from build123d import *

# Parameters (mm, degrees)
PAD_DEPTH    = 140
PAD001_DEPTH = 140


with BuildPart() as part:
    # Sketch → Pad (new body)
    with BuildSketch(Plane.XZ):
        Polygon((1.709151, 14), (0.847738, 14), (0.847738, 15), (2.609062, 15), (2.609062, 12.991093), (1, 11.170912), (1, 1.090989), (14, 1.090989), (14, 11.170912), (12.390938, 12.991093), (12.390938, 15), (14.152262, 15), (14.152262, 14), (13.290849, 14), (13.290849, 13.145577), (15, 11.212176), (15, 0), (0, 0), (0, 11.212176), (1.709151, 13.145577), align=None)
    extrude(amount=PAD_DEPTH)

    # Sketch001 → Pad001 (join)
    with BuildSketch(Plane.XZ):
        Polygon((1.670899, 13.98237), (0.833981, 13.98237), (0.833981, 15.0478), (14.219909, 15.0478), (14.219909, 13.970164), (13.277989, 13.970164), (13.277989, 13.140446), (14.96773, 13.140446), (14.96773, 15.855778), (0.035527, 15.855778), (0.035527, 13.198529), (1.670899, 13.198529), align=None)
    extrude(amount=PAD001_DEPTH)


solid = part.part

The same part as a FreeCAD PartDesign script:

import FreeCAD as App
import Part
import Sketcher

V = App.Vector
Q = App.Units.Quantity


def add_polygon(sketch, points):
    """Adds a closed chain of lines whose ends are joined by coincident constraints."""
    first, n = sketch.GeometryCount, len(points)
    for a, b in zip(points, points[1:] + points[:1]):
        sketch.addGeometry(Part.LineSegment(App.Vector(*a, 0), App.Vector(*b, 0)), False)
    for i in range(n):
        sketch.addConstraint(Sketcher.Constraint("Coincident", first + i, 2, first + (i + 1) % n, 1))

doc = App.newDocument("Part")
body = doc.addObject("PartDesign::Body", "Body")

sketch1 = body.newObject("Sketcher::SketchObject", "Sketch")
sketch1.AttachmentSupport = (doc.getObject("XZ_Plane"), [""])
sketch1.MapMode = "FlatFace"
add_polygon(sketch1, [(0.8, 14), (1.7, 14), (1.7, 13.1), (0, 11.2), (0, 0), (15, 0), (15, 11.2), (13.3, 13.1), (13.3, 14), (14.2, 14), (14.2, 15), (12.4, 15), (12.4, 13), (14, 11.2), (14, 1.1), (1, 1.1), (1, 11.2), (2.6, 13), (2.6, 15), (0.8, 15)])
sketch1.addConstraint([
    Sketcher.Constraint("Horizontal", 0),
    Sketcher.Constraint("Vertical", 1),
    Sketcher.Constraint("Vertical", 3),
    Sketcher.Constraint("Horizontal", 4),
    Sketcher.Constraint("Vertical", 5),
    Sketcher.Constraint("Vertical", 7),
    Sketcher.Constraint("Horizontal", 8),
    Sketcher.Constraint("Vertical", 9),
    Sketcher.Constraint("Horizontal", 10),
    Sketcher.Constraint("Vertical", 11),
    Sketcher.Constraint("Vertical", 13),
    Sketcher.Constraint("Horizontal", 14),
    Sketcher.Constraint("Vertical", 15),
    Sketcher.Constraint("Vertical", 17),
    Sketcher.Constraint("Horizontal", 18),
    Sketcher.Constraint("Vertical", 19),
    Sketcher.Constraint("Coincident", 3, 2, -1, 1),
    Sketcher.Constraint("Parallel", 6, 12),
    Sketcher.Constraint("Parallel", 2, 16),
    Sketcher.Constraint("Horizontal", 2, 2, 5, 2),
    Sketcher.Constraint("Horizontal", 1, 2, 6, 2),
    Sketcher.Constraint("Horizontal", 0, 2, 7, 2),
    Sketcher.Constraint("Horizontal", 12, 2, 15, 2),
    Sketcher.Constraint("Horizontal", 11, 2, 16, 2),
    Sketcher.Constraint("Horizontal", 10, 2, 17, 2),
    Sketcher.Constraint("Equal", 0, 8),
    Sketcher.Constraint("Equal", 10, 18),
    Sketcher.Constraint("Equal", 2, 6),
    Sketcher.Constraint("DistanceX", 4, 1, 4, 2, Q("15 mm")),
    Sketcher.Constraint("DistanceX", 14, 2, 14, 1, Q("13 mm")),
    Sketcher.Constraint("DistanceY", 9, 1, 9, 2, Q("1 mm")),
    Sketcher.Constraint("DistanceY", -1, 1, 0, 2, Q("14 mm")),
    Sketcher.Constraint("DistanceY", 2, 2, 1, 2, Q("1.933401 mm")),
    Sketcher.Constraint("Distance", 2, Q("2.58055 mm")),
    Sketcher.Constraint("Distance", 12, Q("2.429432 mm")),
    Sketcher.Constraint("DistanceX", 0, 1, 0, 2, Q("0.861413 mm")),
    Sketcher.Constraint("DistanceY", 1, 2, 1, 1, Q("0.854423 mm")),
    Sketcher.Constraint("DistanceY", 11, 2, 11, 1, Q("2.008907 mm")),
    Sketcher.Constraint("DistanceY", 13, 2, 13, 1, Q("10.079923 mm")),
])
pad1 = body.newObject("PartDesign::Pad", "Pad")
pad1.Profile = sketch1
pad1.Length = 140

sketch2 = body.newObject("Sketcher::SketchObject", "Sketch001")
sketch2.AttachmentSupport = (doc.getObject("XZ_Plane"), [""])
sketch2.MapMode = "FlatFace"
add_polygon(sketch2, [(1.7, 14), (0.8, 14), (0.8, 15), (14.2, 15), (14.2, 14), (13.3, 14), (13.3, 13.1), (15, 13.1), (15, 15.9), (0, 15.9), (0, 13.2), (1.7, 13.2)])
sketch2.addConstraint([
    Sketcher.Constraint("Horizontal", 0),
    Sketcher.Constraint("Vertical", 1),
    Sketcher.Constraint("Horizontal", 2),
    Sketcher.Constraint("Vertical", 3),
    Sketcher.Constraint("Horizontal", 4),
    Sketcher.Constraint("Vertical", 5),
    Sketcher.Constraint("Horizontal", 6),
    Sketcher.Constraint("Vertical", 7),
    Sketcher.Constraint("Horizontal", 8),
    Sketcher.Constraint("Vertical", 9),
    Sketcher.Constraint("Horizontal", 10),
    Sketcher.Constraint("Vertical", 11),
    Sketcher.Constraint("DistanceX", 4, 2, 4, 1, Q("0.94192 mm")),
    Sketcher.Constraint("DistanceX", 6, 1, 6, 2, Q("1.689741 mm")),
    Sketcher.Constraint("DistanceX", 10, 1, 10, 2, Q("1.635372 mm")),
    Sketcher.Constraint("DistanceY", 1, 1, 1, 2, Q("1.06543 mm")),
    Sketcher.Constraint("DistanceY", 9, 2, 9, 1, Q("2.657249 mm")),
    Sketcher.Constraint("DistanceY", 11, 1, 11, 2, Q("0.783841 mm")),
    Sketcher.Constraint("DistanceY", -1, 1, 1, 2, Q("15.0478 mm")),
    Sketcher.Constraint("DistanceX", -1, 1, 10, 2, Q("1.670899 mm")),
    Sketcher.Constraint("DistanceX", 0, 2, 0, 1, Q("0.836918 mm")),
    Sketcher.Constraint("DistanceX", 2, 1, 2, 2, Q("13.385928 mm")),
    Sketcher.Constraint("DistanceY", 3, 2, 3, 1, Q("1.077636 mm")),
    Sketcher.Constraint("DistanceY", 5, 2, 5, 1, Q("0.829718 mm")),
])
pad2 = body.newObject("PartDesign::Pad", "Pad001")
pad2.Profile = sketch2
pad2.Length = 140

doc.recompute()
